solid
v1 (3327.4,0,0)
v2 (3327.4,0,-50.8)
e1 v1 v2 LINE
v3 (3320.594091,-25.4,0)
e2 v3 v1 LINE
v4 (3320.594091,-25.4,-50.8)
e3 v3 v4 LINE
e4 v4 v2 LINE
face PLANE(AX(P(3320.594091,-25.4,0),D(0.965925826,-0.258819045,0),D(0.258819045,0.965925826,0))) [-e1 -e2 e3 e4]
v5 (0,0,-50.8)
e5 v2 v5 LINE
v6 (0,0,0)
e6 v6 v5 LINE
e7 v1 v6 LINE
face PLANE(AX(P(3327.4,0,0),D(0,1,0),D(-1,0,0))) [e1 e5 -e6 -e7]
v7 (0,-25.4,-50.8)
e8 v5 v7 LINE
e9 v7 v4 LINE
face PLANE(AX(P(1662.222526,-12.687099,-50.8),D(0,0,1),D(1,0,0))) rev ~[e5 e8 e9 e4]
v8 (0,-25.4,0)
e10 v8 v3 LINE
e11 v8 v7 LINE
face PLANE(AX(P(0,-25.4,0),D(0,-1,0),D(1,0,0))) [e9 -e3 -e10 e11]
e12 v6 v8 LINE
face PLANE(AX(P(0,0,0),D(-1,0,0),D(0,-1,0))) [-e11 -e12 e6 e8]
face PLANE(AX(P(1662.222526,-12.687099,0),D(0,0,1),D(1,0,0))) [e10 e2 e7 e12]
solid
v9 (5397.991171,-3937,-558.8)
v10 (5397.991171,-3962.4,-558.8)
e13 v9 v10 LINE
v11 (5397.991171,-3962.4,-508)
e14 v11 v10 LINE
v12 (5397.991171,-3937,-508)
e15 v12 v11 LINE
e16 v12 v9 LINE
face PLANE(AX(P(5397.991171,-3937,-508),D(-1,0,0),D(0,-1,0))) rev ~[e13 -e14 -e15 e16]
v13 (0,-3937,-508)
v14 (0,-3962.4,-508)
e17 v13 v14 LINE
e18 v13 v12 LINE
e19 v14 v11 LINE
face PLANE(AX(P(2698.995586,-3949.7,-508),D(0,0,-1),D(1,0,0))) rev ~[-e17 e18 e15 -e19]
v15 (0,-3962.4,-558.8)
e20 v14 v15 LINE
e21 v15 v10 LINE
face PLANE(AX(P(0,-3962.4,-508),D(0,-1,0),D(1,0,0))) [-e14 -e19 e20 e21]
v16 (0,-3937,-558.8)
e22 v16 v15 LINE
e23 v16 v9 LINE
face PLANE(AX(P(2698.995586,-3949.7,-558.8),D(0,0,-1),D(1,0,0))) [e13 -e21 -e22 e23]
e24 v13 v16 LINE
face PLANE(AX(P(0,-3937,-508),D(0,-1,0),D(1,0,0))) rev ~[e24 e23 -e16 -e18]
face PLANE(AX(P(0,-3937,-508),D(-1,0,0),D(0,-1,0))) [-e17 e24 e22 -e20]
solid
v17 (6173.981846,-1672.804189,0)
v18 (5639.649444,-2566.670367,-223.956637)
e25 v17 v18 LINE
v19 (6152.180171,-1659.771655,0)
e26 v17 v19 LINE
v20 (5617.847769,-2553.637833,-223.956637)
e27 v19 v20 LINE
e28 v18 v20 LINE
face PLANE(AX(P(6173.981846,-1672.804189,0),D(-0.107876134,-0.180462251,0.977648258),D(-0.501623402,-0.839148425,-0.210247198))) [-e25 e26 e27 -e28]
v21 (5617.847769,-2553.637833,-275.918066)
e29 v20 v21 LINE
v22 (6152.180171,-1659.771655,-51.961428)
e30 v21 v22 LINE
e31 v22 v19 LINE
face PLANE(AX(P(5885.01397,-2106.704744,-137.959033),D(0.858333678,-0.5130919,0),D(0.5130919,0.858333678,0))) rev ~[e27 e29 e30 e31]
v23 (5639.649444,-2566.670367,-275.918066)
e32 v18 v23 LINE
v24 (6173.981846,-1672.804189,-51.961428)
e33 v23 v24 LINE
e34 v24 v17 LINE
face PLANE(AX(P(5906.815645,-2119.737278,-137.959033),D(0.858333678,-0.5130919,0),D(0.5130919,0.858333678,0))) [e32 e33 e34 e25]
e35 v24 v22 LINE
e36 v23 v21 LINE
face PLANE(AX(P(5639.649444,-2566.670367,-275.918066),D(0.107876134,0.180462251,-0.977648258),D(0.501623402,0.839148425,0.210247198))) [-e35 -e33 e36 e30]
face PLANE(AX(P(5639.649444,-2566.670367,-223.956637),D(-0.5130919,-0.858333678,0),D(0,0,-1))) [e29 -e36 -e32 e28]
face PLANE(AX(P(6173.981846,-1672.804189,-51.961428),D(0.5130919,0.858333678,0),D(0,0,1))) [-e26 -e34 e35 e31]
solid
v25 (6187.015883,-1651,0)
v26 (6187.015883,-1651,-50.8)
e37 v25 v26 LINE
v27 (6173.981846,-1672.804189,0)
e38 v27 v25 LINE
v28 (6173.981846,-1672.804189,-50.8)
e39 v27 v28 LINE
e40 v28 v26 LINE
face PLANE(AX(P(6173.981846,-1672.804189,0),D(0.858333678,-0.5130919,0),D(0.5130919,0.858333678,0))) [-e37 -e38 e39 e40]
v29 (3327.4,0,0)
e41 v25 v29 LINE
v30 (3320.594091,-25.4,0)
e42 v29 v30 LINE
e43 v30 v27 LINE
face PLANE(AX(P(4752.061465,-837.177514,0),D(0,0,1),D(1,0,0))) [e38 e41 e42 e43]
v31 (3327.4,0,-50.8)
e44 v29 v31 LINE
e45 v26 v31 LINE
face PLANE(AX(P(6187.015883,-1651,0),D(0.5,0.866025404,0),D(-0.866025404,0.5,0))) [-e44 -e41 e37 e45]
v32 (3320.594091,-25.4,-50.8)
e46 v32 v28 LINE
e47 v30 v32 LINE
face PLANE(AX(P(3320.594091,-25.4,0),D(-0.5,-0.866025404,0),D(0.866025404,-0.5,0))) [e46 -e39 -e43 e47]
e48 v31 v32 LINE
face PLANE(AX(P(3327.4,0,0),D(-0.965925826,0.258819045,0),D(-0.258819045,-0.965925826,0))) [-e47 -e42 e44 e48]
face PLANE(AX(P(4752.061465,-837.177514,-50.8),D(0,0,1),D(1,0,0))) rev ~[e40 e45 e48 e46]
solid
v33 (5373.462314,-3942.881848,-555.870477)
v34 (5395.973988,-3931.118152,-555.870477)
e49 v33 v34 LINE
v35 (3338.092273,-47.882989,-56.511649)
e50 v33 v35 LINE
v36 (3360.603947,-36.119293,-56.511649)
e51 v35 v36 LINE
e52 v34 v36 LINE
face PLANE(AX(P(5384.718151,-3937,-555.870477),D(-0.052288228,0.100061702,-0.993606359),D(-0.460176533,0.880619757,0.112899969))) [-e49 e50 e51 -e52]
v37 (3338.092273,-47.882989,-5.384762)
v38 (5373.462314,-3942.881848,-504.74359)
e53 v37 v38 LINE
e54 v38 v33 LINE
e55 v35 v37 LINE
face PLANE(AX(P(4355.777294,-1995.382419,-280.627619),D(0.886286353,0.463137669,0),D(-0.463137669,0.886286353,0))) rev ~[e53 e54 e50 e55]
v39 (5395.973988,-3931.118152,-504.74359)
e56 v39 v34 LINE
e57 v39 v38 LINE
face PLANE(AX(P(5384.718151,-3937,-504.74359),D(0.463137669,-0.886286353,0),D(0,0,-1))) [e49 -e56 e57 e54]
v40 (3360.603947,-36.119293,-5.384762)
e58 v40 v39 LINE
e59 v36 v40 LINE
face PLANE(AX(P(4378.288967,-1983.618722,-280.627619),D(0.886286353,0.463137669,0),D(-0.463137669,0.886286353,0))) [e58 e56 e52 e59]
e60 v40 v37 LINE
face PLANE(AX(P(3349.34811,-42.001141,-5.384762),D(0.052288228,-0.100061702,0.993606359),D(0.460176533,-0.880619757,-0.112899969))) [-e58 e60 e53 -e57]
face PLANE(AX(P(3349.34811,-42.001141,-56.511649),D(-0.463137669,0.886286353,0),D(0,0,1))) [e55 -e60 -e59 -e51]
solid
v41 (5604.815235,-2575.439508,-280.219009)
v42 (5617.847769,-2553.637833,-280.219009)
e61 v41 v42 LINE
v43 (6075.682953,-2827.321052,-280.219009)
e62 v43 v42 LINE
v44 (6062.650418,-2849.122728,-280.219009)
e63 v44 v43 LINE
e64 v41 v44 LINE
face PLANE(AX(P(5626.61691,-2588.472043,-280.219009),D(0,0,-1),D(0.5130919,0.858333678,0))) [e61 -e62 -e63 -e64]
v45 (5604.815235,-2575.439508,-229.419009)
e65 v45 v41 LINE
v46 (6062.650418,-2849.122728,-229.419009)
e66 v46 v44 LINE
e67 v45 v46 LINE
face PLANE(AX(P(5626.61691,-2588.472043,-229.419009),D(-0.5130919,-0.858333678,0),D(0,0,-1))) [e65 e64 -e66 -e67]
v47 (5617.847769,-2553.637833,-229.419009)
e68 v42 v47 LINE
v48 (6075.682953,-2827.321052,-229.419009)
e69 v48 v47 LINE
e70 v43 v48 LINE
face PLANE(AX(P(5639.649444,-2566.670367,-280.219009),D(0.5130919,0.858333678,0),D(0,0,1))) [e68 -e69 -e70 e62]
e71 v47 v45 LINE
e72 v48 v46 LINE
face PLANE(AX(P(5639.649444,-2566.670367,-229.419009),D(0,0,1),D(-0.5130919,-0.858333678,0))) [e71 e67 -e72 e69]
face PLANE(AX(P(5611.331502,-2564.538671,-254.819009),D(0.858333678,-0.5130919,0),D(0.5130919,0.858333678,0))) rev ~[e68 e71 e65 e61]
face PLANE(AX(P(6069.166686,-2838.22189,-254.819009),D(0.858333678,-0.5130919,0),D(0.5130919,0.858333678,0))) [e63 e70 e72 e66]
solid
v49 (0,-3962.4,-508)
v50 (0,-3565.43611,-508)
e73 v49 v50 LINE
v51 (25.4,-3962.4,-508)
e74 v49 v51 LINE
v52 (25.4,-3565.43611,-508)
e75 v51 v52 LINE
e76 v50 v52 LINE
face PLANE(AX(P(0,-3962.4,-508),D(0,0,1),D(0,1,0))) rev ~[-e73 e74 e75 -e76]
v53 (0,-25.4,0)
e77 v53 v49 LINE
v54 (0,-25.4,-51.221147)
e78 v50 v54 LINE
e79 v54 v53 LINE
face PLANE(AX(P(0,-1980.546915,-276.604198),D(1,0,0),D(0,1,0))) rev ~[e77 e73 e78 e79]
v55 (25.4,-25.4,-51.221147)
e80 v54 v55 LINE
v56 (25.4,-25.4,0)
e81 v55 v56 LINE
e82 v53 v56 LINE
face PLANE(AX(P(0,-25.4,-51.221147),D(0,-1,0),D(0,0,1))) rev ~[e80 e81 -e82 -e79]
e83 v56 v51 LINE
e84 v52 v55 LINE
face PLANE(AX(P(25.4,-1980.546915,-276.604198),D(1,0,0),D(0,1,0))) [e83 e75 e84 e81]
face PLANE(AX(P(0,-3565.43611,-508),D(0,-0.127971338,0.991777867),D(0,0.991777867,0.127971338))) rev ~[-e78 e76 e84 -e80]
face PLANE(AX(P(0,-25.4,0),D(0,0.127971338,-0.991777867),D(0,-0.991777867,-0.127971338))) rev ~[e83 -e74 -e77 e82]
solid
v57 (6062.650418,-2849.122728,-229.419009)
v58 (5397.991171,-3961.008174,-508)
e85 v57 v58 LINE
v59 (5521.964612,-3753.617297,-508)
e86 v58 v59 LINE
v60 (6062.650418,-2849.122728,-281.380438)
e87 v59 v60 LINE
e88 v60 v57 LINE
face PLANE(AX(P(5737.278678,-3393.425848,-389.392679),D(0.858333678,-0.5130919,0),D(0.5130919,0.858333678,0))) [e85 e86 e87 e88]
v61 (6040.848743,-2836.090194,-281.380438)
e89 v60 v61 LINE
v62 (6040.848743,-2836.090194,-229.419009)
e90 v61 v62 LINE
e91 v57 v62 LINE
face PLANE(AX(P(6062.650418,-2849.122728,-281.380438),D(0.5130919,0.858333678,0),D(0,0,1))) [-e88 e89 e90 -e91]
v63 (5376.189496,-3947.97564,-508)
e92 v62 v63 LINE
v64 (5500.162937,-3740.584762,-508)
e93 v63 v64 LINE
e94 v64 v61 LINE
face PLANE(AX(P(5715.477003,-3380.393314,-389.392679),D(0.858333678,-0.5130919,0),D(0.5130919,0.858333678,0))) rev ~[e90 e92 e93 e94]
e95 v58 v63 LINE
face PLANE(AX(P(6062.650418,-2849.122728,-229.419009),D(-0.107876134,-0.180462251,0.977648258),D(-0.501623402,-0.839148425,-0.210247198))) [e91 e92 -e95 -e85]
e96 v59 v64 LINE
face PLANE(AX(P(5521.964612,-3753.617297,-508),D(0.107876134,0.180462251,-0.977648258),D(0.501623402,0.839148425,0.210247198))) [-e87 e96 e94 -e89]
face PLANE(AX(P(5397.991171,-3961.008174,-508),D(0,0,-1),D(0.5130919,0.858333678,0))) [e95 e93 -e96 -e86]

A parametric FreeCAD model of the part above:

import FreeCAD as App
import Part
import Sketcher
from FreeCAD import Vector
Q = App.Units.Quantity


def add_polygon(sketch, points):
    """Adds a closed chain of lines whose ends are joined by coincident constraints."""
    first, n = sketch.GeometryCount, len(points)
    for a, b in zip(points, points[1:] + points[:1]):
        sketch.addGeometry(Part.LineSegment(App.Vector(*a, 0), App.Vector(*b, 0)), False)
    for i in range(n):
        sketch.addConstraint(Sketcher.Constraint("Coincident", first + i, 2, first + (i + 1) % n, 1))

doc = App.newDocument("Part")
body = doc.addObject("PartDesign::Body", "Body")

sketch1 = doc.addObject("Sketcher::SketchObject", "Sketch")
body.addObject(sketch1)
sketch1.AttachmentSupport = (doc.XY_Plane, [""])
sketch1.MapMode = "FlatFace"
add_polygon(sketch1, [(3327.4, 0), (0, 0), (0, -25.4), (3320.594091, -25.4)])
sketch1.addConstraint([
    Sketcher.Constraint("Horizontal", 0),
    Sketcher.Constraint("Vertical", 1),
    Sketcher.Constraint("Horizontal", 2),
    Sketcher.Constraint("Coincident", 0, 2, -1, 1),
    Sketcher.Constraint("DistanceX", 0, 2, 0, 1, Q("131 in")),
    Sketcher.Constraint("DistanceY", 1, 2, 1, 1, Q("1 in")),
    Sketcher.Constraint("Angle", 3, Q("75 deg")),
])
pad1 = doc.addObject("PartDesign::Pad", "Pad")
body.addObject(pad1)
pad1.Profile = sketch1
pad1.Length = Q("2 in")
pad1.Reversed = True
body2 = doc.addObject("PartDesign::Body", "Body001")

sketch2 = doc.addObject("Sketcher::SketchObject", "Sketch001")
body2.addObject(sketch2)
sketch2.AttachmentSupport = (doc.getObject("XY_Plane001"), [""])
sketch2.MapMode = "FlatFace"
add_polygon(sketch2, [(6187.015883, -1651), (3327.4, 0), (3320.594091, -25.4), (6173.981846, -1672.804189)])
sketch2.addConstraint([
    Sketcher.Constraint("PointOnObject", 0, 2, -1),
    Sketcher.Constraint("Parallel", 0, 2),
    Sketcher.Constraint("Distance", 0, Q("130 in")),
    Sketcher.Constraint("DistanceX", -1, 1, 0, 2, Q("131 in")),
    Sketcher.Constraint("DistanceY", 1, 2, -1, 1, Q("1 in")),
    Sketcher.Constraint("DistanceY", 3, 2, -1, 1, Q("65 in")),
    Sketcher.Constraint("Angle", 1, Q("-105 deg")),
    Sketcher.Constraint("Angle", 3, Q("59.13 deg")),
])
pad2 = doc.addObject("PartDesign::Pad", "Pad001")
body2.addObject(pad2)
pad2.Profile = sketch2
pad2.Length = Q("2 in")
pad2.Reversed = True
body3 = doc.addObject("PartDesign::Body", "Body002")

sketch3 = doc.addObject("Sketcher::SketchObject", "Sketch002")
body3.addObject(sketch3)
sketch3.AttachmentSupport = (doc.getObject("YZ_Plane002"), [""])
sketch3.MapMode = "FlatFace"
add_polygon(sketch3, [(-25.4, 0), (-3962.4, -508), (-3565.43611, -508), (-25.4, -51.221147)])
sketch3.addConstraint([
    Sketcher.Constraint("Horizontal", 1),
    Sketcher.Constraint("Vertical", 3),
    Sketcher.Constraint("PointOnObject", 3, 2, -1),
    Sketcher.Constraint("Parallel", 0, 2),
    Sketcher.Constraint("DistanceX", 0, 2, -1, 1, Q("156 in")),
    Sketcher.Constraint("DistanceY", 0, 2, -1, 1, Q("20 in")),
    Sketcher.Constraint("DistanceX", 2, 2, -1, 1, Q("1 in")),
    Sketcher.Constraint("DistanceX", 1, 1, 1, 2, Q("396.96389 mm")),
])
pad3 = doc.addObject("PartDesign::Pad", "Pad002")
body3.addObject(pad3)
pad3.Profile = sketch3
pad3.Length = Q("1 in")
body4 = doc.addObject("PartDesign::Body", "Body003")

sketch4 = doc.addObject("Sketcher::SketchObject", "Sketch003")
body4.addObject(sketch4)
sketch4.Placement = App.Placement(Vector(5285.308777, -3159.434603, 0), App.Rotation(Vector(0.5130919, 0.858333678, 0), Vector(0, 0, 1.000000001), Vector(0.858333678, -0.5130919, 0), "ZXY"))
add_polygon(sketch4, [(1731.995905, 0), (690.598833, -223.956637), (690.598833, -275.918066), (1731.995905, -51.961429)])
sketch4.addConstraint([
    Sketcher.Constraint("Vertical", 1),
    Sketcher.Constraint("Vertical", 3),
    Sketcher.Constraint("PointOnObject", 3, 2, -1),
    Sketcher.Constraint("Parallel", 0, 2),
    Sketcher.Constraint("DistanceY", 1, 2, 1, 1, Q("51.961429 mm")),
    Sketcher.Constraint("Distance", 0, Q("1065.206289 mm")),
    Sketcher.Constraint("DistanceY", 0, 2, 2, 2, Q("171.995209 mm")),
    Sketcher.Constraint("DistanceX", -1, 1, 0, 2, Q("690.598833 mm")),
])
pad4 = doc.addObject("PartDesign::Pad", "Pad003")
body4.addObject(pad4)
pad4.Profile = sketch4
pad4.Length = Q("1 in")
pad4.Reversed = True
body5 = doc.addObject("PartDesign::Body", "Body004")

sketch5 = doc.addObject("Sketcher::SketchObject", "Sketch004")
body5.addObject(sketch5)
sketch5.Placement = App.Placement(Vector(5285.308777, -3159.434603, 0), App.Rotation(Vector(0.5130919, 0.858333678, 0), Vector(0, 0, 1.000000001), Vector(0.858333678, -0.5130919, 0), "ZXY"))
add_polygon(sketch5, [(690.598833, -229.41901), (665.198833, -229.41901), (665.198833, -280.21901), (690.598833, -280.21901)])
sketch5.addConstraint([
    Sketcher.Constraint("Horizontal", 0),
    Sketcher.Constraint("Vertical", 1),
    Sketcher.Constraint("Horizontal", 2),
    Sketcher.Constraint("Vertical", 3),
    Sketcher.Constraint("DistanceX", 0, 2, 0, 1, Q("1 in")),
    Sketcher.Constraint("DistanceY", 1, 2, 1, 1, Q("2 in")),
    Sketcher.Constraint("DistanceY", 0, 2, -1, 1, Q("229.41901 mm")),
    Sketcher.Constraint("DistanceX", -1, 1, 0, 2, Q("665.198833 mm")),
])
pad5 = doc.addObject("PartDesign::Pad", "Pad004")
body5.addObject(pad5)
pad5.Profile = sketch5
pad5.Type = "TwoLengths"
pad5.Length = Q("20 in")
pad5.Length2 = Q("1 in")
body6 = doc.addObject("PartDesign::Body", "Body005")

sketch6 = doc.addObject("Sketcher::SketchObject", "Sketch005")
body6.addObject(sketch6)
sketch6.Placement = App.Placement(Vector(5721.342285, -3420.085288, 0), App.Rotation(Vector(0.5130919, 0.858333678, 0), Vector(0, 0, 1.000000001), Vector(0.858333678, -0.5130919, 0), "ZXY"))
add_polygon(sketch6, [(665.198833, -281.380438), (665.198833, -229.41901), (-630.201168, -508.000001), (-388.580825, -508.000001)])
sketch6.addConstraint([
    Sketcher.Constraint("Vertical", 0),
    Sketcher.Constraint("Horizontal", 2),
    Sketcher.Constraint("Parallel", 1, 3),
    Sketcher.Constraint("DistanceY", 1, 2, -1, 1, Q("20 in")),
    Sketcher.Constraint("DistanceX", 1, 2, 0, 2, Q("51 in")),
    Sketcher.Constraint("DistanceY", 0, 1, 0, 2, Q("51.961429 mm")),
    Sketcher.Constraint("DistanceX", 2, 1, 2, 2, Q("241.620343 mm")),
    Sketcher.Constraint("DistanceX", -1, 1, 0, 2, Q("665.198833 mm")),
])
pad6 = doc.addObject("PartDesign::Pad", "Pad005")
body6.addObject(pad6)
pad6.Profile = sketch6
pad6.Length = Q("1 in")
pad6.Reversed = True
body7 = doc.addObject("PartDesign::Body", "Body006")

sketch7 = doc.addObject("Sketcher::SketchObject", "Sketch006")
body7.addObject(sketch7)
sketch7.AttachmentSupport = (doc.getObject("XY_Plane006"), [""])
sketch7.MapMode = "FlatFace"
sketch7.AttachmentOffset = App.Placement(Vector(0, 0, -20 * 25.4), App.Rotation())
add_polygon(sketch7, [(0, -3962.4), (0, -3937), (5397.991171, -3937), (5397.991171, -3962.4)])
sketch7.addConstraint([
    Sketcher.Constraint("Vertical", 0),
    Sketcher.Constraint("Horizontal", 1),
    Sketcher.Constraint("Vertical", 2),
    Sketcher.Constraint("Horizontal", 3),
    Sketcher.Constraint("PointOnObject", 0, 2, -2),
    Sketcher.Constraint("DistanceY", 0, 1, 0, 2, Q("1 in")),
    Sketcher.Constraint("DistanceY", 0, 2, -1, 1, Q("155 in")),
    Sketcher.Constraint("DistanceX", 1, 1, 1, 2, Q("5397.991171 mm")),
])
pad7 = doc.addObject("PartDesign::Pad", "Pad006")
body7.addObject(pad7)
pad7.Profile = sketch7
pad7.Length = Q("2 in")
pad7.Reversed = True
body8 = doc.addObject("PartDesign::Body", "Body007")

sketch8 = doc.addObject("Sketcher::SketchObject", "Sketch007")
body8.addObject(sketch8)
sketch8.Placement = App.Placement(Vector(2613.684346, 1365.806514, 0), App.Rotation(Vector(-0.463137669, 0.886286353, 0), Vector(0, 0, 1), Vector(0.886286353, 0.463137669, 0), "ZXY"))
add_polygon(sketch8, [(-5983.175183, -504.74359), (-5983.175183, -555.870477), (-1588.434313, -56.511649), (-1588.434313, -5.384762)])
sketch8.addConstraint([
    Sketcher.Constraint("Vertical", 0),
    Sketcher.Constraint("Vertical", 2),
    Sketcher.Constraint("Parallel", 1, 3),
    Sketcher.Constraint("Distance", 1, Q("4423.020071 mm")),
    Sketcher.Constraint("DistanceY", 0, 2, 0, 1, Q("51.126887 mm")),
    Sketcher.Constraint("DistanceY", 1, 2, -1, 1, Q("56.511649 mm")),
    Sketcher.Constraint("DistanceY", 3, 2, -1, 1, Q("504.74359 mm")),
    Sketcher.Constraint("DistanceX", 0, 2, -1, 1, Q("5983.175183 mm")),
])
pad8 = doc.addObject("PartDesign::Pad", "Pad007")
body8.addObject(pad8)
pad8.Profile = sketch8
pad8.Type = "TwoLengths"
pad8.Length = Q("0.5 in")
pad8.Length2 = Q("0.5 in")

doc.recompute()
